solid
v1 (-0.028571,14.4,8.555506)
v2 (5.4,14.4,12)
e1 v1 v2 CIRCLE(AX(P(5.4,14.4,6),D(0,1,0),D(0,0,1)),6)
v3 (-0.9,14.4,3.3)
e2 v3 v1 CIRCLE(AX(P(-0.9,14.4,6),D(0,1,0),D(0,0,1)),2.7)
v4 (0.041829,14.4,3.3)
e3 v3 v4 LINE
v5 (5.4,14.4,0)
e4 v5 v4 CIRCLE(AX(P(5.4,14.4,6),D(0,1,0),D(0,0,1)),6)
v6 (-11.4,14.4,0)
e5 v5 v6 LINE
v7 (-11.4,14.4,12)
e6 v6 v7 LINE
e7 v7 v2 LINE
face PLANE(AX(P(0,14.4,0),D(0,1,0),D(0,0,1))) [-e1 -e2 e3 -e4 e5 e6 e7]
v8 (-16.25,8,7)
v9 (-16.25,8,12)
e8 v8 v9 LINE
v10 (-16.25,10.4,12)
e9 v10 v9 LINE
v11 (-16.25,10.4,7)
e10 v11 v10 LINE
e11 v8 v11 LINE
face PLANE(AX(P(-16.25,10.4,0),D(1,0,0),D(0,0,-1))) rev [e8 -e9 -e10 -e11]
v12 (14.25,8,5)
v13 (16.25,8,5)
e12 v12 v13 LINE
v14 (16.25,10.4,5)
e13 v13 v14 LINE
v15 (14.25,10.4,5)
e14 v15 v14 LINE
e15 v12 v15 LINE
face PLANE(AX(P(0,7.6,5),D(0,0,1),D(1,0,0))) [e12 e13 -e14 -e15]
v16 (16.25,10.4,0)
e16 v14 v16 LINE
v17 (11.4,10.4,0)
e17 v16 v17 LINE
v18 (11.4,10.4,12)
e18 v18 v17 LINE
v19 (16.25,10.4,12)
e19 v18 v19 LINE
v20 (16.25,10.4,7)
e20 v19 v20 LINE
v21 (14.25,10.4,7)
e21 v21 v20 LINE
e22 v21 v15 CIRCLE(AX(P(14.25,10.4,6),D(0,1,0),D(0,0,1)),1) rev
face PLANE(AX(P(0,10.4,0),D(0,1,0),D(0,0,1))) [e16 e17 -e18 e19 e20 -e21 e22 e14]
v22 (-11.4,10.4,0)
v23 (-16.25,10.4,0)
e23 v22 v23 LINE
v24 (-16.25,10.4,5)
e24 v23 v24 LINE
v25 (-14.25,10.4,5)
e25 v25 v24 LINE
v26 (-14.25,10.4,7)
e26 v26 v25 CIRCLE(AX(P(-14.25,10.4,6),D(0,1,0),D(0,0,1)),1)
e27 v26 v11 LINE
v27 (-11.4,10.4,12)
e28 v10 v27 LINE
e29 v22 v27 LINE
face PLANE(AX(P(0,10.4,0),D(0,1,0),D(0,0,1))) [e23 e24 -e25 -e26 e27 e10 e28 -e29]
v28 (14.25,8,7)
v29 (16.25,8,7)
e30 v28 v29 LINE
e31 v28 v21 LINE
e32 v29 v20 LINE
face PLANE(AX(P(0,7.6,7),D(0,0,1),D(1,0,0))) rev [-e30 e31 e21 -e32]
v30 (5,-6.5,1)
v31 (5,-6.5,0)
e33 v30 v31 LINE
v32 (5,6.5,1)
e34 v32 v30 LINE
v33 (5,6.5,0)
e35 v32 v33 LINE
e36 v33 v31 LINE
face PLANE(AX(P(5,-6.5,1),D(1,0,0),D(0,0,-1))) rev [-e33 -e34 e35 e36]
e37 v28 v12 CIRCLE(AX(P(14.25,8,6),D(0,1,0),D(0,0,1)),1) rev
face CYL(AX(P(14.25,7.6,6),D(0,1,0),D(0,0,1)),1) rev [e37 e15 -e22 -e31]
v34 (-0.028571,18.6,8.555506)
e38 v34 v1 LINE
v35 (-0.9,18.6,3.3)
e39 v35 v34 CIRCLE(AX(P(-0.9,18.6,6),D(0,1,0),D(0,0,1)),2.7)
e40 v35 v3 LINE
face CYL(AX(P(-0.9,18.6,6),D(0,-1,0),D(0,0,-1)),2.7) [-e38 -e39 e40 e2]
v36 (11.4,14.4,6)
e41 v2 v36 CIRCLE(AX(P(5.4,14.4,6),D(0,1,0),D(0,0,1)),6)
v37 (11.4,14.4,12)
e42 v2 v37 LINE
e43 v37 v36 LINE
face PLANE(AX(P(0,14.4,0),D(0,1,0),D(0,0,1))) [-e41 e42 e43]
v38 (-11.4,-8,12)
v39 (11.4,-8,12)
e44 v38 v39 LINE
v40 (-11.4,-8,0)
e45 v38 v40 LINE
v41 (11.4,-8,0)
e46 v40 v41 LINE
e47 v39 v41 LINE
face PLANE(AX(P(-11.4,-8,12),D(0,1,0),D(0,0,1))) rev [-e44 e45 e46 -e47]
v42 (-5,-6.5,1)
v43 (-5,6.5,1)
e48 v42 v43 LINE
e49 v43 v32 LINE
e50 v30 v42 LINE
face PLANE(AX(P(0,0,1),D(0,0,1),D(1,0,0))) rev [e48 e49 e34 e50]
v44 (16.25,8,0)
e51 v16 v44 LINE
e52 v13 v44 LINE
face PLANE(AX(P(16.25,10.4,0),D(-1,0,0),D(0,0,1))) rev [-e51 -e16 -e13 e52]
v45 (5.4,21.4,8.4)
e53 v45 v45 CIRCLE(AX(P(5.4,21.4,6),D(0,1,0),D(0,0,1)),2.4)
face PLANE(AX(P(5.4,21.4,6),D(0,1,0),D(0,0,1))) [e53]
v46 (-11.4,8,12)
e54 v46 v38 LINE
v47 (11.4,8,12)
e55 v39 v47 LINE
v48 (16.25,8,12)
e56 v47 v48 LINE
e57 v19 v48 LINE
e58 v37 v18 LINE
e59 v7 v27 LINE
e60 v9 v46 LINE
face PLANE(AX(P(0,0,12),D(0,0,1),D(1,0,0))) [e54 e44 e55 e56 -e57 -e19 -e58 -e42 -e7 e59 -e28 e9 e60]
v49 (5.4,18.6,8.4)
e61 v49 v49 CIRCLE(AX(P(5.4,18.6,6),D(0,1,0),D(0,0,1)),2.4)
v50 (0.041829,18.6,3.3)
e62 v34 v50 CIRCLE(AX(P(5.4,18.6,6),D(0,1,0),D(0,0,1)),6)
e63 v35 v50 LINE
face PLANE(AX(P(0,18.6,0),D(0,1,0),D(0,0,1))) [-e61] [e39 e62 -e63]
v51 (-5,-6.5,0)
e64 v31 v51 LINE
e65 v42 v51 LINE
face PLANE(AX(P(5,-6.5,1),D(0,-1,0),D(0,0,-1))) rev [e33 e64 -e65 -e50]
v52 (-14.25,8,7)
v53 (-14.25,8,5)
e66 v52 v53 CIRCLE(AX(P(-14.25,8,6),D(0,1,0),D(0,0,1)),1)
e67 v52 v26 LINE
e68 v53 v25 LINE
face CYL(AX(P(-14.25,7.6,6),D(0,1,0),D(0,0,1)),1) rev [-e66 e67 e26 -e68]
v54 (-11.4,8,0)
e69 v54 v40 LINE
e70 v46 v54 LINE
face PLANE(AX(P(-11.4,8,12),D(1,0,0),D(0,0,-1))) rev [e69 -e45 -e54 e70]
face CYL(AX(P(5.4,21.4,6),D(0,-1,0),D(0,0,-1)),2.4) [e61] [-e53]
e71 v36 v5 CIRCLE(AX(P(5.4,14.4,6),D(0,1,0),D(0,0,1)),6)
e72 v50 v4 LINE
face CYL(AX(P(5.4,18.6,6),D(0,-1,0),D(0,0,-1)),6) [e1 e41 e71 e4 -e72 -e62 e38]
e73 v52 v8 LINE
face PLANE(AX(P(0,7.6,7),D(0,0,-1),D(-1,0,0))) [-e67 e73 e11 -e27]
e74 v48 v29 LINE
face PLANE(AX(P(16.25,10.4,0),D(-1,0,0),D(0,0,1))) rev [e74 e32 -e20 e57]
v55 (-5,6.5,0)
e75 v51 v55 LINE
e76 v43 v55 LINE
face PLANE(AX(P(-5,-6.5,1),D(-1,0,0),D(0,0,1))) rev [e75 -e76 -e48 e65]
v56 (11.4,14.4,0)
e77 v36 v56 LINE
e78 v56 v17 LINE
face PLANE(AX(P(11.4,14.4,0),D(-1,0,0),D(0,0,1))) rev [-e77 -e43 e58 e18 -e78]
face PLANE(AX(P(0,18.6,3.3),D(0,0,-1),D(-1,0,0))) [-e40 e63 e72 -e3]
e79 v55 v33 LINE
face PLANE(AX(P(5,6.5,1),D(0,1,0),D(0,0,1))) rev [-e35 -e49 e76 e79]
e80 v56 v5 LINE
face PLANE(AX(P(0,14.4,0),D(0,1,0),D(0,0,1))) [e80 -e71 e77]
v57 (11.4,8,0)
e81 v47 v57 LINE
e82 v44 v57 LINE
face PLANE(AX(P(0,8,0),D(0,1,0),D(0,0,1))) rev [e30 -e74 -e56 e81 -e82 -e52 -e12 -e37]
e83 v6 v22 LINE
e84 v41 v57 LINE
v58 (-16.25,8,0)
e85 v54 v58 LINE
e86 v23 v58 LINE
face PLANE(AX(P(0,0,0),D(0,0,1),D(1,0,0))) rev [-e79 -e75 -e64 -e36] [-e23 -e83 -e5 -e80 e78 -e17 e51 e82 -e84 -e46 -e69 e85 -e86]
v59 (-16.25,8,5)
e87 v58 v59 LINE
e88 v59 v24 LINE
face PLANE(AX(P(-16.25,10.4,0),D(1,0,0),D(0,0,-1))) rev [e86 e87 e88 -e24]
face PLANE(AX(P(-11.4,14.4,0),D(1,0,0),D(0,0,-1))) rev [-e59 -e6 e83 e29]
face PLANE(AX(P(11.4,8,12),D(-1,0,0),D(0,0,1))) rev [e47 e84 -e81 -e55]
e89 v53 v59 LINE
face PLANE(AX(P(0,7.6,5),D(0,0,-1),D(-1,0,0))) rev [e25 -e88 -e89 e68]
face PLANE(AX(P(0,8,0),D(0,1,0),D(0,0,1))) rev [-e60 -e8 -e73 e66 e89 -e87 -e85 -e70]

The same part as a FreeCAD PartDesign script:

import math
import FreeCAD as App
import Part
import Sketcher


def add_polygon(sketch, points):
    """Adds a closed chain of lines whose ends are joined by coincident constraints."""
    first, n = sketch.GeometryCount, len(points)
    for a, b in zip(points, points[1:] + points[:1]):
        sketch.addGeometry(Part.LineSegment(App.Vector(*a, 0), App.Vector(*b, 0)), False)
    for i in range(n):
        sketch.addConstraint(Sketcher.Constraint("Coincident", first + i, 2, first + (i + 1) % n, 1))

doc = App.newDocument("Part")
body = doc.addObject("PartDesign::Body", "Body")

sketch1 = body.newObject("Sketcher::SketchObject", "Sketch")
sketch1.AttachmentSupport = (doc.getObject("XY_Plane"), [""])
sketch1.MapMode = "FlatFace"
add_polygon(sketch1, [(-11.4, 8), (-11.4, -8), (11.4, -8), (11.4, 8)])
sketch1.addConstraint([
    Sketcher.Constraint("Vertical", 0),
    Sketcher.Constraint("Horizontal", 1),
    Sketcher.Constraint("Vertical", 2),
    Sketcher.Constraint("Horizontal", 3),
    Sketcher.Constraint("Symmetric", 0, 2, 2, 2, -1, 1),
    Sketcher.Constraint("DistanceY", 0, 2, 0, 1, 16.0),
    Sketcher.Constraint("DistanceX", 1, 1, 1, 2, 22.8),
])
pad1 = body.newObject("PartDesign::Pad", "Pad")
pad1.Profile = sketch1
pad1.Length = 12

sketch2 = body.newObject("Sketcher::SketchObject", "Sketch001")
sketch2.AttachmentSupport = (doc.getObject("XZ_Plane"), [""])
sketch2.MapMode = "FlatFace"
sketch2.AttachmentOffset = App.Placement(App.Vector(0, 0, -8), App.Rotation())
add_polygon(sketch2, [(-16.25, 0), (-16.25, 12), (16.25, 12), (16.25, 0)])
sketch2.addConstraint([
    Sketcher.Constraint("Vertical", 0),
    Sketcher.Constraint("Horizontal", 1),
    Sketcher.Constraint("Vertical", 2),
    Sketcher.Constraint("Horizontal", 3),
    Sketcher.Constraint("Symmetric", 2, 2, 3, 2, -1, 1),
    Sketcher.Constraint("DistanceY", 0, 1, 0, 2, 12.0),
    Sketcher.Constraint("DistanceX", 1, 1, 1, 2, 32.5),
])
pad2 = body.newObject("PartDesign::Pad", "Pad001")
pad2.Profile = sketch2
pad2.Length = 2.4
pad2.Reversed = True

sketch3 = body.newObject("Sketcher::SketchObject", "Sketch002")
sketch3.AttachmentSupport = (doc.getObject("XZ_Plane"), [""])
sketch3.MapMode = "FlatFace"
sketch3.AttachmentOffset = App.Placement(App.Vector(0, 0, -10.4), App.Rotation())
add_polygon(sketch3, [(-11.4, 0), (-11.4, 12), (11.4, 12), (11.4, 0)])
sketch3.addConstraint([
    Sketcher.Constraint("Vertical", 0),
    Sketcher.Constraint("Horizontal", 1),
    Sketcher.Constraint("Vertical", 2),
    Sketcher.Constraint("Horizontal", 3),
    Sketcher.Constraint("Symmetric", 2, 2, 3, 2, -1, 1),
    Sketcher.Constraint("DistanceY", 0, 1, 0, 2, 12.0),
    Sketcher.Constraint("DistanceX", 1, 1, 1, 2, 22.8),
])
pad3 = body.newObject("PartDesign::Pad", "Pad002")
pad3.Profile = sketch3
pad3.Length = 4
pad3.Reversed = True

sketch4 = body.newObject("Sketcher::SketchObject", "Sketch003")
sketch4.AttachmentSupport = (doc.getObject("XZ_Plane"), [""])
sketch4.MapMode = "FlatFace"
sketch4.AttachmentOffset = App.Placement(App.Vector(0, 0, -14.4), App.Rotation())
sketch4.addGeometry([
    Part.ArcOfCircle(Part.Circle(App.Vector(-0.9, 6, 0), App.Vector(0, 0, 1), 2.7), math.radians(71.170605), math.radians(270)),
    Part.ArcOfCircle(Part.Circle(App.Vector(5.4, 6, 0), App.Vector(0, 0, 1), 6), math.radians(-153.256316), math.radians(154.791235)),
    Part.LineSegment(App.Vector(0.041829, 3.3, 0), App.Vector(-0.9, 3.3, 0)),
], False)
sketch4.addConstraint([
    Sketcher.Constraint("Coincident", 0, 1, 1, 2),
    Sketcher.Constraint("Coincident", 1, 1, 2, 1),
    Sketcher.Constraint("Tangent", 2, 2, 0, 2),
    Sketcher.Constraint("Horizontal", 2),
    Sketcher.Constraint("Horizontal", 0, 3, 1, 3),
    Sketcher.Constraint("Radius", 1, 6.0),
    Sketcher.Constraint("Radius", 0, 2.7),
    Sketcher.Constraint("DistanceY", -1, 1, 0, 3, 6.0),
    Sketcher.Constraint("DistanceX", 0, 3, -1, 1, 0.9),
    Sketcher.Constraint("DistanceX", -1, 1, 1, 3, 5.4),
])
pad4 = body.newObject("PartDesign::Pad", "Pad003")
pad4.Profile = sketch4
pad4.Length = 4.2
pad4.Reversed = True

sketch5 = body.newObject("Sketcher::SketchObject", "Sketch004")
sketch5.AttachmentSupport = (doc.getObject("XZ_Plane"), [""])
sketch5.MapMode = "FlatFace"
sketch5.AttachmentOffset = App.Placement(App.Vector(0, 0, -18.6), App.Rotation())
sketch5.addGeometry(Part.Circle(App.Vector(5.4, 6, 0), App.Vector(0, 0, 1), 2.4), False)
sketch5.addConstraint([
    Sketcher.Constraint("Diameter", 0, 4.8),
    Sketcher.Constraint("DistanceY", -1, 1, 0, 3, 6.0),
    Sketcher.Constraint("DistanceX", -1, 1, 0, 3, 5.4),
])
pad5 = body.newObject("PartDesign::Pad", "Pad004")
pad5.Profile = sketch5
pad5.Length = 2.8
pad5.Reversed = True

sketch6 = body.newObject("Sketcher::SketchObject", "Sketch005")
sketch6.AttachmentSupport = (doc.getObject("XZ_Plane"), [""])
sketch6.MapMode = "FlatFace"
sketch6.AttachmentOffset = App.Placement(App.Vector(0, 0, -10.4), App.Rotation())
sketch6.addGeometry([
    Part.LineSegment(App.Vector(-14.25, 5, 0), App.Vector(-16.25, 5, 0)),
    Part.LineSegment(App.Vector(-16.25, 5, 0), App.Vector(-16.25, 7, 0)),
    Part.LineSegment(App.Vector(-16.25, 7, 0), App.Vector(-14.25, 7, 0)),
    Part.ArcOfCircle(Part.Circle(App.Vector(-14.25, 6, 0), App.Vector(0, 0, 1), 1), math.radians(-90), math.radians(90)),
    Part.LineSegment(App.Vector(14.25, 7, 0), App.Vector(16.25, 7, 0)),
    Part.LineSegment(App.Vector(16.25, 7, 0), App.Vector(16.25, 5, 0)),
    Part.LineSegment(App.Vector(16.25, 5, 0), App.Vector(14.25, 5, 0)),
    Part.ArcOfCircle(Part.Circle(App.Vector(14.25, 6, 0), App.Vector(0, 0, 1), 1), math.radians(90), math.radians(270)),
], False)
sketch6.addConstraint([
    Sketcher.Constraint("Coincident", 0, 2, 1, 1),
    Sketcher.Constraint("Coincident", 1, 2, 2, 1),
    Sketcher.Constraint("Tangent", 2, 2, 3, 2),
    Sketcher.Constraint("Tangent", 3, 1, 0, 1),
    Sketcher.Constraint("Coincident", 4, 2, 5, 1),
    Sketcher.Constraint("Coincident", 5, 2, 6, 1),
    Sketcher.Constraint("Tangent", 6, 2, 7, 2),
    Sketcher.Constraint("Tangent", 7, 1, 4, 1),
    Sketcher.Constraint("Horizontal", 0),
    Sketcher.Constraint("Vertical", 1),
    Sketcher.Constraint("Horizontal", 2),
    Sketcher.Constraint("Horizontal", 4),
    Sketcher.Constraint("Vertical", 5),
    Sketcher.Constraint("Horizontal", 6),
    Sketcher.Constraint("Equal", 3, 7),
    Sketcher.Constraint("Symmetric", 3, 3, 7, 3, -2),
    Sketcher.Constraint("Equal", 2, 4),
    Sketcher.Constraint("Equal", 6, 1),
    Sketcher.Constraint("Radius", 3, 1.0),
    Sketcher.Constraint("DistanceY", -1, 1, 3, 3, 6.0),
    Sketcher.Constraint("DistanceX", 3, 3, 7, 3, 28.5),
])
pocket1 = body.newObject("PartDesign::Pocket", "Pocket")
pocket1.Profile = sketch6
pocket1.Length = 2.8
pocket1.Reversed = True

sketch7 = body.newObject("Sketcher::SketchObject", "Sketch006")
sketch7.AttachmentSupport = (doc.getObject("XY_Plane"), [""])
sketch7.MapMode = "FlatFace"
add_polygon(sketch7, [(5, 6.5), (5, -6.5), (-5, -6.5), (-5, 6.5)])
sketch7.addConstraint([
    Sketcher.Constraint("Vertical", 0),
    Sketcher.Constraint("Horizontal", 1),
    Sketcher.Constraint("Vertical", 2),
    Sketcher.Constraint("Horizontal", 3),
    Sketcher.Constraint("Symmetric", 0, 2, 2, 2, -1, 1),
    Sketcher.Constraint("DistanceX", 1, 2, 1, 1, 10.0),
    Sketcher.Constraint("DistanceY", 0, 2, 0, 1, 13.0),
])
pocket2 = body.newObject("PartDesign::Pocket", "Pocket001")
pocket2.Profile = sketch7
pocket2.Length = 1
pocket2.Reversed = True

doc.recompute()
